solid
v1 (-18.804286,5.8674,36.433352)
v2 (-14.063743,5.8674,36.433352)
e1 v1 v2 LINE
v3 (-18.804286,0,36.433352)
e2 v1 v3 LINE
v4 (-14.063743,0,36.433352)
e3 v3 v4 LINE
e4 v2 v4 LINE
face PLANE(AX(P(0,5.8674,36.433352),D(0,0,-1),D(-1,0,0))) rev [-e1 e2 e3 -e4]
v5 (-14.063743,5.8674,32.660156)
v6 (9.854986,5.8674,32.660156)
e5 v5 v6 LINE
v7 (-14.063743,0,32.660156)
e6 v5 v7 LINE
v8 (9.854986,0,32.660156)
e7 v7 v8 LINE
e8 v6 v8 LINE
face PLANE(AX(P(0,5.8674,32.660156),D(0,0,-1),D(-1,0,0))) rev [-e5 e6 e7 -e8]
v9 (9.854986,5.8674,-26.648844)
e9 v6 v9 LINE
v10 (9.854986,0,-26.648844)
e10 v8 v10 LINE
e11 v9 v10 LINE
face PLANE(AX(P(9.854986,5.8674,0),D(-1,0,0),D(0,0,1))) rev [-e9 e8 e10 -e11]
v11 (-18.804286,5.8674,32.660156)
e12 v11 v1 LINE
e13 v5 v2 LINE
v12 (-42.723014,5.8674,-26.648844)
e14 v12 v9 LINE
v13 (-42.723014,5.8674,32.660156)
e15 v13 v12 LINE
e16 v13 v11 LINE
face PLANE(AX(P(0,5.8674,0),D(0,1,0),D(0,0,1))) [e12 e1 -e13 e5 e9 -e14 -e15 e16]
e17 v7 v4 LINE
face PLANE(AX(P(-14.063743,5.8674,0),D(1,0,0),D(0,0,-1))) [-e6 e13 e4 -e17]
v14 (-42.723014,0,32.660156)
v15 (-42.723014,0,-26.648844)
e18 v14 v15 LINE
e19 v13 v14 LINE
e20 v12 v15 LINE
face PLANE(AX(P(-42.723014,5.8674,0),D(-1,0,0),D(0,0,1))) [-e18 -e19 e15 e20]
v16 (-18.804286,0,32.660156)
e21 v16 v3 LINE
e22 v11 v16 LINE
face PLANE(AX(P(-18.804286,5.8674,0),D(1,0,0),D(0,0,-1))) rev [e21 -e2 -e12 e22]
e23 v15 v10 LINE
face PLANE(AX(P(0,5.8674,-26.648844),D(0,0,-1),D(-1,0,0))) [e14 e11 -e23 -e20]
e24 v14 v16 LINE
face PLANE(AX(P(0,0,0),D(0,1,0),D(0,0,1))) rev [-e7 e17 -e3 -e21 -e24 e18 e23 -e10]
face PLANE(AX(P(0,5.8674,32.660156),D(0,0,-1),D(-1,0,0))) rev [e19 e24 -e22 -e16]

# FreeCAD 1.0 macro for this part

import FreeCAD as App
import Part
import Sketcher

V = App.Vector
Q = App.Units.Quantity


def add_polygon(sketch, points):
    """Adds a closed chain of lines whose ends are joined by coincident constraints."""
    first, n = sketch.GeometryCount, len(points)
    for a, b in zip(points, points[1:] + points[:1]):
        sketch.addGeometry(Part.LineSegment(App.Vector(*a, 0), App.Vector(*b, 0)), False)
    for i in range(n):
        sketch.addConstraint(Sketcher.Constraint("Coincident", first + i, 2, first + (i + 1) % n, 1))

doc = App.newDocument("Part")
body = doc.addObject("PartDesign::Body", "Body")

sketch1 = body.newObject("Sketcher::SketchObject", "Sketch")
sketch1.AttachmentSupport = (doc.getObject("XZ_Plane"), [""])
sketch1.MapMode = "FlatFace"
add_polygon(sketch1, [(-18.804286, 32.660156), (-18.804286, 36.433352), (-14.063743, 36.433352), (-14.063743, 32.660156), (9.854986, 32.660156), (9.854986, -26.648844), (-42.723014, -26.648844), (-42.723014, 32.660156)])
sketch1.addConstraint([
    Sketcher.Constraint("Vertical", 0),
    Sketcher.Constraint("Horizontal", 1),
    Sketcher.Constraint("Vertical", 2),
    Sketcher.Constraint("Horizontal", 3),
    Sketcher.Constraint("Vertical", 4),
    Sketcher.Constraint("Horizontal", 5),
    Sketcher.Constraint("Vertical", 6),
    Sketcher.Constraint("Horizontal", 7),
    Sketcher.Constraint("Horizontal", 3, 2, 6, 2),
    Sketcher.Constraint("Equal", 3, 7),
    Sketcher.Constraint("DistanceX", 5, 2, 5, 1, Q("2.07 in")),
    Sketcher.Constraint("DistanceY", 4, 2, 4, 1, Q("2.335 in")),
    Sketcher.Constraint("DistanceX", 3, 1, 3, 2, 23.918728),
    Sketcher.Constraint("DistanceY", 0, 1, 0, 2, 3.773196),
    Sketcher.Constraint("DistanceY", -1, 1, 0, 2, 36.433352),
    Sketcher.Constraint("DistanceX", 0, 2, -1, 1, 18.804286),
])
pad1 = body.newObject("PartDesign::Pad", "Pad")
pad1.Profile = sketch1
pad1.Length = Q("0.231 in")
pad1.Reversed = True

doc.recompute()
